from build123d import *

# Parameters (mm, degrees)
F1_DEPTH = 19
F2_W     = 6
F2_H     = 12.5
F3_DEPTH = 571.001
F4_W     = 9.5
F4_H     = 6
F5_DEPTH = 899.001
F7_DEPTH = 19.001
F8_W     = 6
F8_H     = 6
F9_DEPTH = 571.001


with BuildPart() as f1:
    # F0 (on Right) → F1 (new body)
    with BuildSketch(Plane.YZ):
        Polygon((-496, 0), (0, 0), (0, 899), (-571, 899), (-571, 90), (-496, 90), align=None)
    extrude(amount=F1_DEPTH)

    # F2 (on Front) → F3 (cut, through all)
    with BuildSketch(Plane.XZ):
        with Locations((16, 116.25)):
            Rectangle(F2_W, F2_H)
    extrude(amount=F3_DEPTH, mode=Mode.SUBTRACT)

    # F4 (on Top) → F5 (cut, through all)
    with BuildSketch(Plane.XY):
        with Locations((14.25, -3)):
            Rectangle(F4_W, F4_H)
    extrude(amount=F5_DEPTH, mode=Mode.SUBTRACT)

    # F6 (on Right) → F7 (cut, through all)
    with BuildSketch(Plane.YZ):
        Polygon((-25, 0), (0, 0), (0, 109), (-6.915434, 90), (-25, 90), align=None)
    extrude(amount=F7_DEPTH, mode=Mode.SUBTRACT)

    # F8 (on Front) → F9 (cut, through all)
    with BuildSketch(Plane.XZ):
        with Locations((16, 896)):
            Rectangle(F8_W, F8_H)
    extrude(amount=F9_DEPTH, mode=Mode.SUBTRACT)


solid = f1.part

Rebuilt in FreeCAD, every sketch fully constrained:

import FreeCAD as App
import Part
import Sketcher
Q = App.Units.Quantity

doc = App.newDocument("Part")
params = doc.addObject("Spreadsheet::Sheet", "Params")
for row, (alias, value) in enumerate([
    ("sketch1_width", "496 mm"),
    ("sketch1_width2", "571 mm"),
    ("sketch1_height", "899 mm"),
    ("sketch1_height2", "809 mm"),
    ("pad1_length", "19 mm"),
    ("sketch2_width", "6 mm"),
    ("sketch2_height", "12.5 mm"),
    ("sketch3_height", "6 mm"),
    ("sketch3_width", "9.5 mm"),
    ("sketch4_width", "25 mm"),
    ("sketch4_height", "109 mm"),
    ("sketch4_height2", "90 mm"),
    ("sketch5_width", "6 mm"),
], start=1):
    params.set(f"A{row}", alias)
    params.set(f"B{row}", "=" + value)
    params.setAlias(f"B{row}", alias)

body = doc.addObject("PartDesign::Body", "Body")

# Sketch on YZ plane
sketch1 = body.newObject("Sketcher::SketchObject", "Sketch")
sketch1.AttachmentSupport = (doc.getObject("YZ_Plane"), [""])
sketch1.MapMode = "FlatFace"
sketch1.addGeometry([
    Part.LineSegment(App.Vector(-496, 0, 0), App.Vector(0, 0, 0)),  # 0
    Part.LineSegment(App.Vector(0, 0, 0), App.Vector(0, 899, 0)),  # 1
    Part.LineSegment(App.Vector(0, 899, 0), App.Vector(-571, 899, 0)),  # 2
    Part.LineSegment(App.Vector(-571, 899, 0), App.Vector(-571, 90, 0)),  # 3
    Part.LineSegment(App.Vector(-571, 90, 0), App.Vector(-496, 90, 0)),  # 4
    Part.LineSegment(App.Vector(-496, 90, 0), App.Vector(-496, 0, 0)),  # 5
], False)
sketch1.addConstraint([
    Sketcher.Constraint("Coincident", 0, 2, 1, 1),
    Sketcher.Constraint("Coincident", 1, 2, 2, 1),
    Sketcher.Constraint("Coincident", 2, 2, 3, 1),
    Sketcher.Constraint("Coincident", 3, 2, 4, 1),
    Sketcher.Constraint("Coincident", 4, 2, 5, 1),
    Sketcher.Constraint("Coincident", 5, 2, 0, 1),
    Sketcher.Constraint("Horizontal", 0),
    Sketcher.Constraint("Vertical", 1),
    Sketcher.Constraint("Horizontal", 2),
    Sketcher.Constraint("Vertical", 3),
    Sketcher.Constraint("Horizontal", 4),
    Sketcher.Constraint("Vertical", 5),
    Sketcher.Constraint("Coincident", 0, 2, -1, 1),
    Sketcher.Constraint("DistanceX", 0, 1, 0, 2, 496.0),
    Sketcher.Constraint("DistanceX", 2, 2, 2, 1, 571.0),
    Sketcher.Constraint("DistanceY", 1, 1, 1, 2, 899.0),
    Sketcher.Constraint("DistanceY", 3, 2, 3, 1, 809.0),
])
sketch1.setExpression("Constraints[13]", "Params.sketch1_width")
sketch1.setExpression("Constraints[14]", "Params.sketch1_width2")
sketch1.setExpression("Constraints[15]", "Params.sketch1_height")
sketch1.setExpression("Constraints[16]", "Params.sketch1_height2")
pad1 = body.newObject("PartDesign::Pad", "Pad")
pad1.Profile = sketch1
pad1.setExpression("Length", "Params.pad1_length")

# Sketch on XZ plane
sketch2 = body.newObject("Sketcher::SketchObject", "Sketch001")
sketch2.AttachmentSupport = (doc.getObject("XZ_Plane"), [""])
sketch2.MapMode = "FlatFace"
sketch2.addGeometry([
    Part.LineSegment(App.Vector(13, 122.5, 0), App.Vector(13, 110, 0)),
    Part.LineSegment(App.Vector(13, 110, 0), App.Vector(19, 110, 0)),
    Part.LineSegment(App.Vector(19, 110, 0), App.Vector(19, 122.5, 0)),
    Part.LineSegment(App.Vector(19, 122.5, 0), App.Vector(13, 122.5, 0)),
], False)
sketch2.addConstraint([
    Sketcher.Constraint("Coincident", 0, 2, 1, 1),
    Sketcher.Constraint("Coincident", 1, 2, 2, 1),
    Sketcher.Constraint("Coincident", 2, 2, 3, 1),
    Sketcher.Constraint("Coincident", 3, 2, 0, 1),
    Sketcher.Constraint("Vertical", 0),
    Sketcher.Constraint("Horizontal", 1),
    Sketcher.Constraint("Vertical", 2),
    Sketcher.Constraint("Horizontal", 3),
    Sketcher.Constraint("DistanceX", 1, 1, 1, 2, 6.0),
    Sketcher.Constraint("DistanceY", 0, 2, 0, 1, 12.5),
    Sketcher.Constraint("DistanceX", -1, 1, 0, 2, 13.0),
    Sketcher.Constraint("DistanceY", -1, 1, 0, 2, 110.0),
])
sketch2.setExpression("Constraints[8]", "Params.sketch2_width")
sketch2.setExpression("Constraints[9]", "Params.sketch2_height")
pocket1 = body.newObject("PartDesign::Pocket", "Pocket")
pocket1.Profile = sketch2
pocket1.Type = "ThroughAll"
pocket1.Reversed = True

# Sketch on XY plane
sketch3 = body.newObject("Sketcher::SketchObject", "Sketch002")
sketch3.AttachmentSupport = (doc.getObject("XY_Plane"), [""])
sketch3.MapMode = "FlatFace"
sketch3.addGeometry([
    Part.LineSegment(App.Vector(9.5, 0, 0), App.Vector(9.5, -6, 0)),
    Part.LineSegment(App.Vector(9.5, -6, 0), App.Vector(19, -6, 0)),
    Part.LineSegment(App.Vector(19, -6, 0), App.Vector(19, 0, 0)),
    Part.LineSegment(App.Vector(19, 0, 0), App.Vector(9.5, 0, 0)),
], False)
sketch3.addConstraint([
    Sketcher.Constraint("Coincident", 0, 2, 1, 1),
    Sketcher.Constraint("Coincident", 1, 2, 2, 1),
    Sketcher.Constraint("Coincident", 2, 2, 3, 1),
    Sketcher.Constraint("Coincident", 3, 2, 0, 1),
    Sketcher.Constraint("Vertical", 0),
    Sketcher.Constraint("Horizontal", 1),
    Sketcher.Constraint("Vertical", 2),
    Sketcher.Constraint("Horizontal", 3),
    Sketcher.Constraint("PointOnObject", 2, 2, -1),
    Sketcher.Constraint("DistanceY", 0, 2, 0, 1, 6.0),
    Sketcher.Constraint("DistanceX", 1, 1, 1, 2, 9.5),
    Sketcher.Constraint("DistanceX", -1, 1, 1, 2, 19.0),
])
sketch3.setExpression("Constraints[9]", "Params.sketch3_height")
sketch3.setExpression("Constraints[10]", "Params.sketch3_width")
pocket2 = body.newObject("PartDesign::Pocket", "Pocket001")
pocket2.Profile = sketch3
pocket2.Type = "ThroughAll"
pocket2.Reversed = True

# Sketch on YZ plane
sketch4 = body.newObject("Sketcher::SketchObject", "Sketch003")
sketch4.AttachmentSupport = (doc.getObject("YZ_Plane"), [""])
sketch4.MapMode = "FlatFace"
sketch4.addGeometry([
    Part.LineSegment(App.Vector(-25, 0, 0), App.Vector(0, 0, 0)),  # 0
    Part.LineSegment(App.Vector(0, 0, 0), App.Vector(0, 109, 0)),  # 1
    Part.LineSegment(App.Vector(0, 109, 0), App.Vector(-6.915434, 90, 0)),  # 2
    Part.LineSegment(App.Vector(-6.915434, 90, 0), App.Vector(-25, 90, 0)),  # 3
    Part.LineSegment(App.Vector(-25, 90, 0), App.Vector(-25, 0, 0)),  # 4
], False)
sketch4.addConstraint([
    Sketcher.Constraint("Coincident", 0, 2, 1, 1),
    Sketcher.Constraint("Coincident", 1, 2, 2, 1),
    Sketcher.Constraint("Coincident", 2, 2, 3, 1),
    Sketcher.Constraint("Coincident", 3, 2, 4, 1),
    Sketcher.Constraint("Coincident", 4, 2, 0, 1),
    Sketcher.Constraint("Horizontal", 0),
    Sketcher.Constraint("Vertical", 1),
    Sketcher.Constraint("Horizontal", 3),
    Sketcher.Constraint("Vertical", 4),
    Sketcher.Constraint("Coincident", 0, 2, -1, 1),
    Sketcher.Constraint("DistanceX", 0, 1, 0, 2, 25.0),
    Sketcher.Constraint("DistanceY", 1, 1, 1, 2, 109.0),
    Sketcher.Constraint("DistanceY", 4, 2, 4, 1, 90.0),
    Sketcher.Constraint("Angle", 2, Q("-109.999999 deg")),
])
sketch4.setExpression("Constraints[10]", "Params.sketch4_width")
sketch4.setExpression("Constraints[11]", "Params.sketch4_height")
sketch4.setExpression("Constraints[12]", "Params.sketch4_height2")
pocket3 = body.newObject("PartDesign::Pocket", "Pocket002")
pocket3.Profile = sketch4
pocket3.Type = "ThroughAll"
pocket3.Reversed = True

# Sketch on XZ plane
sketch5 = body.newObject("Sketcher::SketchObject", "Sketch004")
sketch5.AttachmentSupport = (doc.getObject("XZ_Plane"), [""])
sketch5.MapMode = "FlatFace"
sketch5.addGeometry([
    Part.LineSegment(App.Vector(13, 899, 0), App.Vector(13, 893, 0)),
    Part.LineSegment(App.Vector(13, 893, 0), App.Vector(19, 893, 0)),
    Part.LineSegment(App.Vector(19, 893, 0), App.Vector(19, 899, 0)),
    Part.LineSegment(App.Vector(19, 899, 0), App.Vector(13, 899, 0)),
], False)
sketch5.addConstraint([
    Sketcher.Constraint("Coincident", 0, 2, 1, 1),
    Sketcher.Constraint("Coincident", 1, 2, 2, 1),
    Sketcher.Constraint("Coincident", 2, 2, 3, 1),
    Sketcher.Constraint("Coincident", 3, 2, 0, 1),
    Sketcher.Constraint("Vertical", 0),
    Sketcher.Constraint("Horizontal", 1),
    Sketcher.Constraint("Vertical", 2),
    Sketcher.Constraint("Horizontal", 3),
    Sketcher.Constraint("Equal", 3, 0),
    Sketcher.Constraint("DistanceX", 1, 1, 1, 2, 6.0),
    Sketcher.Constraint("DistanceX", -1, 1, 0, 2, 13.0),
    Sketcher.Constraint("DistanceY", -1, 1, 0, 2, 893.0),
])
sketch5.setExpression("Constraints[9]", "Params.sketch5_width")
pocket4 = body.newObject("PartDesign::Pocket", "Pocket003")
pocket4.Profile = sketch5
pocket4.Type = "ThroughAll"
pocket4.Reversed = True

doc.recompute()
